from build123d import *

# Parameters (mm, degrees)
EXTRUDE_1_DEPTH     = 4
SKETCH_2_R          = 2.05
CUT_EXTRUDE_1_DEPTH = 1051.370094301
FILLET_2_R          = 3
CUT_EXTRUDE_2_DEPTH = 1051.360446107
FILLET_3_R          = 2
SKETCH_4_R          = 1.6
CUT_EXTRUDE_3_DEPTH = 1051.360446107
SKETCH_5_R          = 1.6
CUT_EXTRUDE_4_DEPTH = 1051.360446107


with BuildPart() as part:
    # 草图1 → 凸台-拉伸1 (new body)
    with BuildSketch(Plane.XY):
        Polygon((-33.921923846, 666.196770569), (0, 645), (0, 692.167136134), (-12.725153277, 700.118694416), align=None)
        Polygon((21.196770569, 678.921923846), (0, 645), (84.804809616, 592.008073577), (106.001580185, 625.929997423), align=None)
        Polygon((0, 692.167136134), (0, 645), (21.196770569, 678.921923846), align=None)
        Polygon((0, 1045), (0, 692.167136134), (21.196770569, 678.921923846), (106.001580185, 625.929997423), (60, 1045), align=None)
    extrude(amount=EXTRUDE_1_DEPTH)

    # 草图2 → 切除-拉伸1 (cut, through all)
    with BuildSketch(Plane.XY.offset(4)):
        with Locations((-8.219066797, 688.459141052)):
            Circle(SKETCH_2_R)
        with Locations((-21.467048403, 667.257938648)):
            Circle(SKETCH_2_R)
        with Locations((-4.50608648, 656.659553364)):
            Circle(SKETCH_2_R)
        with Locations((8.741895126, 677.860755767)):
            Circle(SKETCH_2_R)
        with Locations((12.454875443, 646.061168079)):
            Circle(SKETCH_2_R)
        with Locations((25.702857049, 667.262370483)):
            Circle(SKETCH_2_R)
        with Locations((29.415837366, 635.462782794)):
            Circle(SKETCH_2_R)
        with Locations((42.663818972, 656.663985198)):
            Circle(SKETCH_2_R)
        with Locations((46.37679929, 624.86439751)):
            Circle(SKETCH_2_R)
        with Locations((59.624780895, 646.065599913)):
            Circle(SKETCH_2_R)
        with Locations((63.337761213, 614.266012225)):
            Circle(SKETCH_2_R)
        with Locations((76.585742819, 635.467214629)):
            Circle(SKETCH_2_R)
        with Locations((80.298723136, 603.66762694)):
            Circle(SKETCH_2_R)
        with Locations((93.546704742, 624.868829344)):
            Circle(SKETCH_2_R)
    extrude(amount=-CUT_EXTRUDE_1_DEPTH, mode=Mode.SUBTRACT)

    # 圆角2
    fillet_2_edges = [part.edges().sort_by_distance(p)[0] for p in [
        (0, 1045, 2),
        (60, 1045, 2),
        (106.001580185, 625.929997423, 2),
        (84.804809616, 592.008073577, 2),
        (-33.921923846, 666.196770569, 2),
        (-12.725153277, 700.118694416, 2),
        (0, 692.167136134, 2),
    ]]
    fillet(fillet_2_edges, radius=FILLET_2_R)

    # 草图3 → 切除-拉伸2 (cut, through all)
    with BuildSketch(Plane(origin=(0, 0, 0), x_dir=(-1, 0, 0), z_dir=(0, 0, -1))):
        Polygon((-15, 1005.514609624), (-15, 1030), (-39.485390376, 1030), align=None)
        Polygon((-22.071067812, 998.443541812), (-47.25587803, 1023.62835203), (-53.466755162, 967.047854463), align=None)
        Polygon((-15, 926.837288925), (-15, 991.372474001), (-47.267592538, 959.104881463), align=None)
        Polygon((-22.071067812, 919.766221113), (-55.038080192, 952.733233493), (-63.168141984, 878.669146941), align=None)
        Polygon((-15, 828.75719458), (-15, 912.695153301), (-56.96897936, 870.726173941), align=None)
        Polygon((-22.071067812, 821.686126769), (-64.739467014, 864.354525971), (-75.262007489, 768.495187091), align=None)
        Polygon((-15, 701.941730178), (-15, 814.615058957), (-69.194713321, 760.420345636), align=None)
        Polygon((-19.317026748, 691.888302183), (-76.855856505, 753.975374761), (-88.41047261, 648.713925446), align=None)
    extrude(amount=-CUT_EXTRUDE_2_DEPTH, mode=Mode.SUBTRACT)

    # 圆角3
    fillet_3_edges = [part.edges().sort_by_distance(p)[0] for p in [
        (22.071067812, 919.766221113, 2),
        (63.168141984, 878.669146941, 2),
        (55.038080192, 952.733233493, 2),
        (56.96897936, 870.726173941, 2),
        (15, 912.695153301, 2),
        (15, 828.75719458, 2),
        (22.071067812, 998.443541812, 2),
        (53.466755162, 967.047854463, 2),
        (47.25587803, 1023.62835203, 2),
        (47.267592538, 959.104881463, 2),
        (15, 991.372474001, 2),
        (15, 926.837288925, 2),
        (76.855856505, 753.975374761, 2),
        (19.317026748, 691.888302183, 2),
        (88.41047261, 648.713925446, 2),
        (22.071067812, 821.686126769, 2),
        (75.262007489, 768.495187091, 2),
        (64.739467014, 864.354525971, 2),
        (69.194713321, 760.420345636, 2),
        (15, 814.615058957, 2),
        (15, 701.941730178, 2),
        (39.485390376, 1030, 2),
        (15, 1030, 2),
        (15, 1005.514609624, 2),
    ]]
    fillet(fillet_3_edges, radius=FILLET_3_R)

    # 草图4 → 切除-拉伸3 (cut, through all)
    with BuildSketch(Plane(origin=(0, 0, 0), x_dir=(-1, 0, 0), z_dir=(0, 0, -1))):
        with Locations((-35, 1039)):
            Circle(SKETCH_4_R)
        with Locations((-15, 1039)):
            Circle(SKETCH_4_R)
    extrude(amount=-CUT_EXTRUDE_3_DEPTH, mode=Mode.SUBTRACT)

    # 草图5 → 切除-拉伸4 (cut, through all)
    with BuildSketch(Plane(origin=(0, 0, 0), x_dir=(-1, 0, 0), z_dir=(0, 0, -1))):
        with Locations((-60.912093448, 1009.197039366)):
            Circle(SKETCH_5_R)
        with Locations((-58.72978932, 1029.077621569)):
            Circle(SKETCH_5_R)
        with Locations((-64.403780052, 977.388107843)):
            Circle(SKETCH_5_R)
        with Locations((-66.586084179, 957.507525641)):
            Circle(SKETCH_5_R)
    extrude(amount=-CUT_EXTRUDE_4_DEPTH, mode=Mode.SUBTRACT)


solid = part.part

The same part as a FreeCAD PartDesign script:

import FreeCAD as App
import Part
import Sketcher

V = App.Vector
Q = App.Units.Quantity


def edges_at(feature, points):
    """Names of the edges that pass closest to the given points."""
    edges = feature.Shape.Edges
    near = lambda p: min(range(len(edges)), key=lambda i: edges[i].distToShape(Part.Vertex(*p))[0])
    return sorted({f"Edge{near(p) + 1}" for p in points})


def add_polygon(sketch, points):
    """Adds a closed chain of lines whose ends are joined by coincident constraints."""
    first, n = sketch.GeometryCount, len(points)
    for a, b in zip(points, points[1:] + points[:1]):
        sketch.addGeometry(Part.LineSegment(App.Vector(*a, 0), App.Vector(*b, 0)), False)
    for i in range(n):
        sketch.addConstraint(Sketcher.Constraint("Coincident", first + i, 2, first + (i + 1) % n, 1))

doc = App.newDocument("Part")
body = doc.addObject("PartDesign::Body", "Body")

# Sketch on XY plane
sketch1 = body.newObject("Sketcher::SketchObject", "Sketch")
sketch1.AttachmentSupport = (doc.getObject("XY_Plane"), [""])
sketch1.MapMode = "FlatFace"
add_polygon(sketch1, [(-34, 666), (0, 645), (85, 592), (106, 626), (60, 1045), (0, 1045), (0, 692), (-13, 700)])  # lines 0-7
sketch1.addConstraint(Sketcher.Constraint("Horizontal", 4))
sketch1.addConstraint(Sketcher.Constraint("Vertical", 5))
sketch1.addConstraint(Sketcher.Constraint("PointOnObject", 0, 2, -2))
sketch1.addConstraint(Sketcher.Constraint("PointOnObject", 4, 2, -2))
sketch1.addConstraint(Sketcher.Constraint("Parallel", 0, 1))
sketch1.addConstraint(Sketcher.Constraint("Perpendicular", 1, 2))
sketch1.addConstraint(Sketcher.Constraint("Perpendicular", 2, 6))
sketch1.addConstraint(Sketcher.Constraint("Perpendicular", 6, 7))
sketch1.addConstraint(Sketcher.Constraint("Equal", 0, 2))
sketch1.addConstraint(Sketcher.Constraint("Equal", 2, 7))
sketch1.addConstraint(Sketcher.Constraint("DistanceX", 4, 2, 4, 1, Q("60 mm")))
sketch1.addConstraint(Sketcher.Constraint("Angle", 0, Q("-32 deg")))
sketch1.addConstraint(Sketcher.Constraint("Distance", 0, Q("40 mm")))
sketch1.addConstraint(Sketcher.Constraint("Distance", 1, Q("100 mm")))
sketch1.addConstraint(Sketcher.Constraint("DistanceY", -1, 1, 0, 2, Q("645 mm")))
sketch1.addConstraint(Sketcher.Constraint("DistanceY", -1, 1, 3, 2, Q("1045 mm")))
pad1 = body.newObject("PartDesign::Pad", "Pad")
pad1.Profile = sketch1
pad1.Length = 4

# Sketch on XY plane
sketch2 = body.newObject("Sketcher::SketchObject", "Sketch001")
sketch2.AttachmentSupport = (doc.getObject("XY_Plane"), [""])
sketch2.MapMode = "FlatFace"
sketch2.AttachmentOffset = App.Placement(V(0, 0, 4), App.Rotation())
sketch2.addGeometry(Part.Circle(V(-8.2, 688.5, 0), V(0, 0, 1), 2), False)
sketch2.addGeometry(Part.Circle(V(-21.5, 667.3, 0), V(0, 0, 1), 2), False)
sketch2.addGeometry(Part.Circle(V(-4.5, 656.7, 0), V(0, 0, 1), 2), False)
sketch2.addGeometry(Part.Circle(V(8.7, 677.9, 0), V(0, 0, 1), 2), False)
sketch2.addGeometry(Part.Circle(V(12.5, 646.1, 0), V(0, 0, 1), 2), False)
sketch2.addGeometry(Part.Circle(V(25.7, 667.3, 0), V(0, 0, 1), 2), False)
sketch2.addGeometry(Part.Circle(V(29.4, 635.5, 0), V(0, 0, 1), 2), False)
sketch2.addGeometry(Part.Circle(V(42.7, 656.7, 0), V(0, 0, 1), 2), False)
sketch2.addGeometry(Part.Circle(V(46.4, 624.9, 0), V(0, 0, 1), 2), False)
sketch2.addGeometry(Part.Circle(V(59.6, 646.1, 0), V(0, 0, 1), 2), False)
sketch2.addGeometry(Part.Circle(V(63.3, 614.3, 0), V(0, 0, 1), 2), False)
sketch2.addGeometry(Part.Circle(V(76.6, 635.5, 0), V(0, 0, 1), 2), False)
sketch2.addGeometry(Part.Circle(V(80.3, 603.7, 0), V(0, 0, 1), 2), False)
sketch2.addGeometry(Part.Circle(V(93.5, 624.9, 0), V(0, 0, 1), 2), False)
sketch2.addConstraint(Sketcher.Constraint("Equal", 0, 1))
sketch2.addConstraint(Sketcher.Constraint("Equal", 1, 2))
sketch2.addConstraint(Sketcher.Constraint("Equal", 2, 3))
sketch2.addConstraint(Sketcher.Constraint("Equal", 3, 4))
sketch2.addConstraint(Sketcher.Constraint("Equal", 4, 5))
sketch2.addConstraint(Sketcher.Constraint("Equal", 5, 6))
sketch2.addConstraint(Sketcher.Constraint("Equal", 6, 7))
sketch2.addConstraint(Sketcher.Constraint("Equal", 7, 8))
sketch2.addConstraint(Sketcher.Constraint("Equal", 8, 9))
sketch2.addConstraint(Sketcher.Constraint("Equal", 9, 10))
sketch2.addConstraint(Sketcher.Constraint("Equal", 10, 11))
sketch2.addConstraint(Sketcher.Constraint("Equal", 11, 12))
sketch2.addConstraint(Sketcher.Constraint("Equal", 12, 13))
sketch2.addConstraint(Sketcher.Constraint("Diameter", 0, Q("4.1 mm")))
sketch2.addConstraint(Sketcher.Constraint("DistanceX", -1, 1, 8, 3, Q("46.376799 mm")))
sketch2.addConstraint(Sketcher.Constraint("DistanceY", -1, 1, 9, 3, Q("646.0656 mm")))
sketch2.addConstraint(Sketcher.Constraint("DistanceY", -1, 1, 0, 3, Q("688.459141 mm")))
sketch2.addConstraint(Sketcher.Constraint("DistanceX", 1, 3, -1, 1, Q("21.467048 mm")))
sketch2.addConstraint(Sketcher.Constraint("DistanceY", -1, 1, 1, 3, Q("667.257939 mm")))
sketch2.addConstraint(Sketcher.Constraint("DistanceY", -1, 1, 4, 3, Q("646.061168 mm")))
sketch2.addConstraint(Sketcher.Constraint("DistanceY", -1, 1, 5, 3, Q("667.26237 mm")))
sketch2.addConstraint(Sketcher.Constraint("DistanceX", -1, 1, 7, 3, Q("42.663819 mm")))
sketch2.addConstraint(Sketcher.Constraint("DistanceX", -1, 1, 9, 3, Q("59.624781 mm")))
sketch2.addConstraint(Sketcher.Constraint("DistanceX", -1, 1, 10, 3, Q("63.337761 mm")))
sketch2.addConstraint(Sketcher.Constraint("DistanceY", -1, 1, 13, 3, Q("624.868829 mm")))
sketch2.addConstraint(Sketcher.Constraint("DistanceX", 1, 3, 0, 3, Q("13.247982 mm")))
sketch2.addConstraint(Sketcher.Constraint("DistanceX", 1, 3, 2, 3, Q("16.960962 mm")))
sketch2.addConstraint(Sketcher.Constraint("DistanceX", 0, 3, 3, 3, Q("16.960962 mm")))
sketch2.addConstraint(Sketcher.Constraint("DistanceX", 2, 3, 4, 3, Q("16.960962 mm")))
sketch2.addConstraint(Sketcher.Constraint("DistanceX", 3, 3, 5, 3, Q("16.960962 mm")))
sketch2.addConstraint(Sketcher.Constraint("DistanceX", 4, 3, 6, 3, Q("16.960962 mm")))
sketch2.addConstraint(Sketcher.Constraint("DistanceY", 6, 3, 2, 3, Q("21.196771 mm")))
sketch2.addConstraint(Sketcher.Constraint("DistanceY", 7, 3, 3, 3, Q("21.196771 mm")))
sketch2.addConstraint(Sketcher.Constraint("DistanceY", 2, 3, 7, 3, Q("0.004432 mm")))
sketch2.addConstraint(Sketcher.Constraint("DistanceY", 8, 3, 4, 3, Q("21.196771 mm")))
sketch2.addConstraint(Sketcher.Constraint("DistanceY", 10, 3, 6, 3, Q("21.196771 mm")))
sketch2.addConstraint(Sketcher.Constraint("DistanceX", 9, 3, 11, 3, Q("16.960962 mm")))
sketch2.addConstraint(Sketcher.Constraint("DistanceY", 11, 3, 7, 3, Q("21.196771 mm")))
sketch2.addConstraint(Sketcher.Constraint("DistanceX", 10, 3, 12, 3, Q("16.960962 mm")))
sketch2.addConstraint(Sketcher.Constraint("DistanceY", 12, 3, 8, 3, Q("21.196771 mm")))
sketch2.addConstraint(Sketcher.Constraint("DistanceX", 11, 3, 13, 3, Q("16.960962 mm")))
sketch2.addConstraint(Sketcher.Constraint("DistanceY", -1, 1, 2, 3, Q("656.659553 mm")))
pocket1 = body.newObject("PartDesign::Pocket", "Pocket")
pocket1.Profile = sketch2
pocket1.Type = "ThroughAll"
doc.recompute()

fillet = body.newObject("PartDesign::Fillet", "Fillet")
fillet.Base = (pocket1, edges_at(pocket1, [
    (0, 1045, 2),
    (60, 1045, 2),
    (106.002, 625.93, 2),
    (84.805, 592.008, 2),
    (-33.922, 666.197, 2),
    (-12.725, 700.119, 2),
    (0, 692.167, 2),
]))
fillet.Radius = 3

# Sketch on XY plane
sketch3 = body.newObject("Sketcher::SketchObject", "Sketch002")
sketch3.AttachmentSupport = (doc.getObject("XY_Plane"), [""])
sketch3.MapMode = "FlatFace"
add_polygon(sketch3, [(15, 1006), (15, 1030), (39, 1030)])  # lines 0-2
add_polygon(sketch3, [(22, 998), (47, 1024), (53, 967)])  # lines 3-5
add_polygon(sketch3, [(15, 927), (15, 991), (47, 959)])  # lines 6-8
add_polygon(sketch3, [(22, 920), (55, 953), (63, 879)])  # lines 9-11
add_polygon(sketch3, [(15, 829), (15, 913), (57, 871)])  # lines 12-14
add_polygon(sketch3, [(22, 822), (65, 864), (75, 768)])  # lines 15-17
add_polygon(sketch3, [(15, 702), (15, 815), (69, 760)])  # lines 18-20
add_polygon(sketch3, [(19, 692), (77, 754), (88, 649)])  # lines 21-23
sketch3.addConstraint(Sketcher.Constraint("Vertical", 0))
sketch3.addConstraint(Sketcher.Constraint("Horizontal", 1))
sketch3.addConstraint(Sketcher.Constraint("Vertical", 6))
sketch3.addConstraint(Sketcher.Constraint("Vertical", 12))
sketch3.addConstraint(Sketcher.Constraint("Vertical", 18))
sketch3.addConstraint(Sketcher.Constraint("Parallel", 2, 3))
sketch3.addConstraint(Sketcher.Constraint("Perpendicular", 3, 5))
sketch3.addConstraint(Sketcher.Constraint("Parallel", 5, 7))
sketch3.addConstraint(Sketcher.Constraint("Perpendicular", 7, 8))
sketch3.addConstraint(Sketcher.Constraint("Parallel", 8, 9))
sketch3.addConstraint(Sketcher.Constraint("Parallel", 4, 10))
sketch3.addConstraint(Sketcher.Constraint("Perpendicular", 9, 11))
sketch3.addConstraint(Sketcher.Constraint("Parallel", 11, 13))
sketch3.addConstraint(Sketcher.Constraint("Perpendicular", 13, 14))
sketch3.addConstraint(Sketcher.Constraint("Parallel", 14, 15))
sketch3.addConstraint(Sketcher.Constraint("Parallel", 10, 16))
sketch3.addConstraint(Sketcher.Constraint("Perpendicular", 15, 17))
sketch3.addConstraint(Sketcher.Constraint("Parallel", 17, 19))
sketch3.addConstraint(Sketcher.Constraint("Parallel", 20, 21))
sketch3.addConstraint(Sketcher.Constraint("Parallel", 16, 22))
sketch3.addConstraint(Sketcher.Constraint("Vertical", 2, 2, 6, 2))
sketch3.addConstraint(Sketcher.Constraint("Vertical", 5, 2, 11, 2))
sketch3.addConstraint(Sketcher.Constraint("Vertical", 8, 2, 12, 2))
sketch3.addConstraint(Sketcher.Constraint("Vertical", 11, 2, 17, 2))
sketch3.addConstraint(Sketcher.Constraint("Vertical", 14, 2, 18, 2))
sketch3.addConstraint(Sketcher.Constraint("Equal", 1, 0))
sketch3.addConstraint(Sketcher.Constraint("Angle", 23, Q("148 deg")))
sketch3.addConstraint(Sketcher.Constraint("DistanceX", -1, 1, 0, 2, Q("15 mm")))
sketch3.addConstraint(Sketcher.Constraint("DistanceY", -1, 1, 0, 2, Q("1030 mm")))
sketch3.addConstraint(Sketcher.Constraint("Distance", 3, Q("35.6167 mm")))
sketch3.addConstraint(Sketcher.Constraint("Distance", 13, Q("59.3531 mm")))
sketch3.addConstraint(Sketcher.Constraint("Distance", 19, Q("76.642899 mm")))
sketch3.addConstraint(Sketcher.Constraint("Distance", 23, Q("81.473499 mm")))
sketch3.addConstraint(Sketcher.Constraint("DistanceX", 1, 1, 1, 2, Q("24.48539 mm")))
sketch3.addConstraint(Sketcher.Constraint("DistanceY", 18, 1, 18, 2, Q("112.673329 mm")))
sketch3.addConstraint(Sketcher.Constraint("DistanceX", 9, 2, 13, 2, Q("1.930899 mm")))
sketch3.addConstraint(Sketcher.Constraint("DistanceX", 11, 2, 15, 2, Q("42.668399 mm")))
sketch3.addConstraint(Sketcher.Constraint("Distance", 10, Q("74.508971 mm")))
sketch3.addConstraint(Sketcher.Constraint("Distance", 11, Q("58.12004 mm")))
sketch3.addConstraint(Sketcher.Constraint("DistanceY", 6, 1, 6, 2, Q("64.535185 mm")))
sketch3.addConstraint(Sketcher.Constraint("DistanceY", -1, 1, 5, 2, Q("998.443542 mm")))
sketch3.addConstraint(Sketcher.Constraint("DistanceY", -1, 1, 7, 2, Q("959.104881 mm")))
sketch3.addConstraint(Sketcher.Constraint("DistanceY", -1, 1, 11, 2, Q("919.766221 mm")))
sketch3.addConstraint(Sketcher.Constraint("DistanceY", -1, 1, 18, 2, Q("814.615059 mm")))
sketch3.addConstraint(Sketcher.Constraint("DistanceY", 12, 2, 7, 2, Q("46.409728 mm")))
sketch3.addConstraint(Sketcher.Constraint("DistanceY", 15, 2, 10, 2, Q("14.314621 mm")))
sketch3.addConstraint(Sketcher.Constraint("DistanceY", 21, 2, 19, 2, Q("6.444971 mm")))
sketch3.addConstraint(Sketcher.Constraint("DistanceX", 16, 2, 21, 2, Q("1.593849 mm")))
pocket2 = body.newObject("PartDesign::Pocket", "Pocket001")
pocket2.Profile = sketch3
pocket2.Type = "ThroughAll"
pocket2.Reversed = True
doc.recompute()

fillet2 = body.newObject("PartDesign::Fillet", "Fillet001")
fillet2.Base = (pocket2, edges_at(pocket2, [
    (22.071, 919.766, 2),
    (63.168, 878.669, 2),
    (55.038, 952.733, 2),
    (56.969, 870.726, 2),
    (15, 912.695, 2),
    (15, 828.757, 2),
    (22.071, 998.444, 2),
    (53.467, 967.048, 2),
    (47.256, 1023.628, 2),
    (47.268, 959.105, 2),
    (15, 991.372, 2),
    (15, 926.837, 2),
    (76.856, 753.975, 2),
    (19.317, 691.888, 2),
    (88.41, 648.714, 2),
    (22.071, 821.686, 2),
    (75.262, 768.495, 2),
    (64.739, 864.355, 2),
    (69.195, 760.42, 2),
    (15, 814.615, 2),
    (15, 701.942, 2),
    (39.485, 1030, 2),
    (15, 1030, 2),
    (15, 1005.515, 2),
]))
fillet2.Radius = 2

# Sketch on XY plane
sketch4 = body.newObject("Sketcher::SketchObject", "Sketch003")
sketch4.AttachmentSupport = (doc.getObject("XY_Plane"), [""])
sketch4.MapMode = "FlatFace"
sketch4.addGeometry(Part.Circle(V(35, 1039, 0), V(0, 0, 1), 1.6), False)
sketch4.addGeometry(Part.Circle(V(15, 1039, 0), V(0, 0, 1), 1.6), False)
sketch4.addConstraint(Sketcher.Constraint("Equal", 0, 1))
sketch4.addConstraint(Sketcher.Constraint("Horizontal", 0, 3, 1, 3))
sketch4.addConstraint(Sketcher.Constraint("Diameter", 0, Q("3.2 mm")))
sketch4.addConstraint(Sketcher.Constraint("DistanceX", -1, 1, 0, 3, Q("35 mm")))
sketch4.addConstraint(Sketcher.Constraint("DistanceY", -1, 1, 0, 3, Q("1039 mm")))
sketch4.addConstraint(Sketcher.Constraint("DistanceX", -1, 1, 1, 3, Q("15 mm")))
pocket3 = body.newObject("PartDesign::Pocket", "Pocket002")
pocket3.Profile = sketch4
pocket3.Type = "ThroughAll"
pocket3.Reversed = True

# Sketch on XY plane
sketch5 = body.newObject("Sketcher::SketchObject", "Sketch004")
sketch5.AttachmentSupport = (doc.getObject("XY_Plane"), [""])
sketch5.MapMode = "FlatFace"
sketch5.addGeometry(Part.Circle(V(60.9, 1009.2, 0), V(0, 0, 1), 1.6), False)
sketch5.addGeometry(Part.Circle(V(58.7, 1029.1, 0), V(0, 0, 1), 1.6), False)
sketch5.addGeometry(Part.Circle(V(64.4, 977.4, 0), V(0, 0, 1), 1.6), False)
sketch5.addGeometry(Part.Circle(V(66.6, 957.5, 0), V(0, 0, 1), 1.6), False)
sketch5.addConstraint(Sketcher.Constraint("Equal", 0, 1))
sketch5.addConstraint(Sketcher.Constraint("Equal", 1, 2))
sketch5.addConstraint(Sketcher.Constraint("Equal", 2, 3))
sketch5.addConstraint(Sketcher.Constraint("Diameter", 0, Q("3.2 mm")))
sketch5.addConstraint(Sketcher.Constraint("DistanceY", -1, 1, 0, 3, Q("1009.197039 mm")))
sketch5.addConstraint(Sketcher.Constraint("DistanceX", -1, 1, 1, 3, Q("58.729789 mm")))
sketch5.addConstraint(Sketcher.Constraint("DistanceY", -1, 1, 1, 3, Q("1029.077622 mm")))
sketch5.addConstraint(Sketcher.Constraint("DistanceX", -1, 1, 2, 3, Q("64.40378 mm")))
sketch5.addConstraint(Sketcher.Constraint("DistanceY", 2, 3, 0, 3, Q("31.808932 mm")))
sketch5.addConstraint(Sketcher.Constraint("DistanceX", 0, 3, 3, 3, Q("5.673991 mm")))
sketch5.addConstraint(Sketcher.Constraint("DistanceX", -1, 1, 0, 3, Q("60.912093 mm")))
sketch5.addConstraint(Sketcher.Constraint("DistanceY", -1, 1, 3, 3, Q("957.507526 mm")))
pocket4 = body.newObject("PartDesign::Pocket", "Pocket003")
pocket4.Profile = sketch5
pocket4.Type = "ThroughAll"
pocket4.Reversed = True

doc.recompute()
